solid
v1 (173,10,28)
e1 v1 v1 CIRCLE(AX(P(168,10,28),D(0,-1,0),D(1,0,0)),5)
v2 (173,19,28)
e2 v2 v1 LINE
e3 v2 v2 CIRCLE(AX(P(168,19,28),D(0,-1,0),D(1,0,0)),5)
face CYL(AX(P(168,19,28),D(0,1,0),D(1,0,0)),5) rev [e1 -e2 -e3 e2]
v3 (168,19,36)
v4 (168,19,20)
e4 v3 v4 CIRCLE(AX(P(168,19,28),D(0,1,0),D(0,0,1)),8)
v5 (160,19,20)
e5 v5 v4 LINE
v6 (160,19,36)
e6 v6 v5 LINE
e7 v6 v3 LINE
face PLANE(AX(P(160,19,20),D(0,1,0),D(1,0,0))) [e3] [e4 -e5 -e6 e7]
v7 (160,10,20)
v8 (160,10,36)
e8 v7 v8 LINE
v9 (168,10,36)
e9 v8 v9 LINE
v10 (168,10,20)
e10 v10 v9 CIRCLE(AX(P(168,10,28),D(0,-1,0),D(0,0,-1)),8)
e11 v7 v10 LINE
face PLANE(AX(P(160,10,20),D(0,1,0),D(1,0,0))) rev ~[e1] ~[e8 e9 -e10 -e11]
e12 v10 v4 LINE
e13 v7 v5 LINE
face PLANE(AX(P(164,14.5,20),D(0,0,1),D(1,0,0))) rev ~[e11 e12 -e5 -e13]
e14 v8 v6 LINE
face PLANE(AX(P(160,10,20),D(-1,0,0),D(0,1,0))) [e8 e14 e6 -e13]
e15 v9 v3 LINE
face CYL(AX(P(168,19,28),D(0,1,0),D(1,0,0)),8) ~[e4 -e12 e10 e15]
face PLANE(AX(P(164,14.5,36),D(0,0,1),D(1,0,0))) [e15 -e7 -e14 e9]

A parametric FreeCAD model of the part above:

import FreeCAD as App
import Part
import Sketcher
from FreeCAD import Vector

doc = App.newDocument("Part")
body = doc.addObject("PartDesign::Body", "Body")

# Sketch on XY plane
sketch1 = body.newObject("Sketcher::SketchObject", "Sketch")
sketch1.AttachmentSupport = (doc.getObject("XY_Plane"), [""])
sketch1.MapMode = "FlatFace"
sketch1.addGeometry(Part.Circle(Vector(0, 0, 0), Vector(0, 0, 1), 5), False)
sketch1.addConstraint(Sketcher.Constraint("Coincident", 0, 3, -1, 1))
sketch1.addConstraint(Sketcher.Constraint("Diameter", 0, 10.0))
pad1 = body.newObject("PartDesign::Pad", "Pad")
pad1.Profile = sketch1
pad1.Length = 9
body2 = doc.addObject("PartDesign::Body", "Body001")
doc.recompute()

body.Placement = App.Placement(Vector(0, 0, 0), App.Rotation(Vector(1, 0, 0), 90))
boolean = body2.newObject("PartDesign::Boolean", "Boolean")
boolean.Type = "Fuse"
boolean.addObjects([body])
body3 = doc.addObject("PartDesign::Body", "Body002")
doc.recompute()

body2.Placement = App.Placement(Vector(8, 9, 8), App.Rotation(Vector(0, 0, 1), 0))
boolean2 = body3.newObject("PartDesign::Boolean", "Boolean001")
boolean2.Type = "Fuse"
boolean2.addObjects([body2])
body4 = doc.addObject("PartDesign::Body", "Body003")

# Sketch on XY plane
sketch2 = body4.newObject("Sketcher::SketchObject", "Sketch001")
sketch2.AttachmentSupport = (doc.getObject("XY_Plane003"), [""])
sketch2.MapMode = "FlatFace"
sketch2.addGeometry(Part.LineSegment(Vector(0, 9, 0), Vector(0, 0, 0)), False)
sketch2.addGeometry(Part.LineSegment(Vector(0, 0, 0), Vector(8, 0, 0)), False)
sketch2.addGeometry(Part.LineSegment(Vector(8, 0, 0), Vector(8, 9, 0)), False)
sketch2.addGeometry(Part.LineSegment(Vector(8, 9, 0), Vector(0, 9, 0)), False)
sketch2.addConstraint(Sketcher.Constraint("Coincident", 0, 2, 1, 1))
sketch2.addConstraint(Sketcher.Constraint("Coincident", 1, 2, 2, 1))
sketch2.addConstraint(Sketcher.Constraint("Coincident", 2, 2, 3, 1))
sketch2.addConstraint(Sketcher.Constraint("Coincident", 3, 2, 0, 1))
sketch2.addConstraint(Sketcher.Constraint("Vertical", 0))
sketch2.addConstraint(Sketcher.Constraint("Horizontal", 1))
sketch2.addConstraint(Sketcher.Constraint("Vertical", 2))
sketch2.addConstraint(Sketcher.Constraint("Horizontal", 3))
sketch2.addConstraint(Sketcher.Constraint("Coincident", 0, 2, -1, 1))
sketch2.addConstraint(Sketcher.Constraint("DistanceX", 1, 1, 1, 2, 8.0))
sketch2.addConstraint(Sketcher.Constraint("DistanceY", 0, 2, 0, 1, 9.0))
pad2 = body4.newObject("PartDesign::Pad", "Pad001")
pad2.Profile = sketch2
pad2.Length = 16
body5 = doc.addObject("PartDesign::Body", "Body004")

# Sketch on XY plane
sketch3 = body5.newObject("Sketcher::SketchObject", "Sketch002")
sketch3.AttachmentSupport = (doc.getObject("XY_Plane004"), [""])
sketch3.MapMode = "FlatFace"
sketch3.addGeometry(Part.Circle(Vector(0, 0, 0), Vector(0, 0, 1), 8), False)
sketch3.addConstraint(Sketcher.Constraint("Coincident", 0, 3, -1, 1))
sketch3.addConstraint(Sketcher.Constraint("Diameter", 0, 16.0))
pad3 = body5.newObject("PartDesign::Pad", "Pad002")
pad3.Profile = sketch3
pad3.Length = 9
body6 = doc.addObject("PartDesign::Body", "Body005")
doc.recompute()

body5.Placement = App.Placement(Vector(0, 0, 0), App.Rotation(Vector(1, 0, 0), 90))
boolean3 = body6.newObject("PartDesign::Boolean", "Boolean002")
boolean3.Type = "Fuse"
boolean3.addObjects([body5])
body7 = doc.addObject("PartDesign::Body", "Body006")
doc.recompute()

body6.Placement = App.Placement(Vector(8, 9, 8), App.Rotation(Vector(0, 0, 1), 0))
boolean4 = body7.newObject("PartDesign::Boolean", "Boolean003")
boolean4.Type = "Fuse"
boolean4.addObjects([body6])
doc.recompute()

boolean5 = body7.newObject("PartDesign::Boolean", "Boolean004")
boolean5.Type = "Fuse"
boolean5.addObjects([body4])
doc.recompute()

boolean6 = body7.newObject("PartDesign::Boolean", "Boolean005")
boolean6.Type = "Cut"
boolean6.addObjects([body3])
body8 = doc.addObject("PartDesign::Body", "Body007")
doc.recompute()

body7.Placement = App.Placement(Vector(160, 10, 20), App.Rotation(Vector(0, 0, 1), 0))
boolean7 = body8.newObject("PartDesign::Boolean", "Boolean006")
boolean7.Type = "Fuse"
boolean7.addObjects([body7])

doc.recompute()
